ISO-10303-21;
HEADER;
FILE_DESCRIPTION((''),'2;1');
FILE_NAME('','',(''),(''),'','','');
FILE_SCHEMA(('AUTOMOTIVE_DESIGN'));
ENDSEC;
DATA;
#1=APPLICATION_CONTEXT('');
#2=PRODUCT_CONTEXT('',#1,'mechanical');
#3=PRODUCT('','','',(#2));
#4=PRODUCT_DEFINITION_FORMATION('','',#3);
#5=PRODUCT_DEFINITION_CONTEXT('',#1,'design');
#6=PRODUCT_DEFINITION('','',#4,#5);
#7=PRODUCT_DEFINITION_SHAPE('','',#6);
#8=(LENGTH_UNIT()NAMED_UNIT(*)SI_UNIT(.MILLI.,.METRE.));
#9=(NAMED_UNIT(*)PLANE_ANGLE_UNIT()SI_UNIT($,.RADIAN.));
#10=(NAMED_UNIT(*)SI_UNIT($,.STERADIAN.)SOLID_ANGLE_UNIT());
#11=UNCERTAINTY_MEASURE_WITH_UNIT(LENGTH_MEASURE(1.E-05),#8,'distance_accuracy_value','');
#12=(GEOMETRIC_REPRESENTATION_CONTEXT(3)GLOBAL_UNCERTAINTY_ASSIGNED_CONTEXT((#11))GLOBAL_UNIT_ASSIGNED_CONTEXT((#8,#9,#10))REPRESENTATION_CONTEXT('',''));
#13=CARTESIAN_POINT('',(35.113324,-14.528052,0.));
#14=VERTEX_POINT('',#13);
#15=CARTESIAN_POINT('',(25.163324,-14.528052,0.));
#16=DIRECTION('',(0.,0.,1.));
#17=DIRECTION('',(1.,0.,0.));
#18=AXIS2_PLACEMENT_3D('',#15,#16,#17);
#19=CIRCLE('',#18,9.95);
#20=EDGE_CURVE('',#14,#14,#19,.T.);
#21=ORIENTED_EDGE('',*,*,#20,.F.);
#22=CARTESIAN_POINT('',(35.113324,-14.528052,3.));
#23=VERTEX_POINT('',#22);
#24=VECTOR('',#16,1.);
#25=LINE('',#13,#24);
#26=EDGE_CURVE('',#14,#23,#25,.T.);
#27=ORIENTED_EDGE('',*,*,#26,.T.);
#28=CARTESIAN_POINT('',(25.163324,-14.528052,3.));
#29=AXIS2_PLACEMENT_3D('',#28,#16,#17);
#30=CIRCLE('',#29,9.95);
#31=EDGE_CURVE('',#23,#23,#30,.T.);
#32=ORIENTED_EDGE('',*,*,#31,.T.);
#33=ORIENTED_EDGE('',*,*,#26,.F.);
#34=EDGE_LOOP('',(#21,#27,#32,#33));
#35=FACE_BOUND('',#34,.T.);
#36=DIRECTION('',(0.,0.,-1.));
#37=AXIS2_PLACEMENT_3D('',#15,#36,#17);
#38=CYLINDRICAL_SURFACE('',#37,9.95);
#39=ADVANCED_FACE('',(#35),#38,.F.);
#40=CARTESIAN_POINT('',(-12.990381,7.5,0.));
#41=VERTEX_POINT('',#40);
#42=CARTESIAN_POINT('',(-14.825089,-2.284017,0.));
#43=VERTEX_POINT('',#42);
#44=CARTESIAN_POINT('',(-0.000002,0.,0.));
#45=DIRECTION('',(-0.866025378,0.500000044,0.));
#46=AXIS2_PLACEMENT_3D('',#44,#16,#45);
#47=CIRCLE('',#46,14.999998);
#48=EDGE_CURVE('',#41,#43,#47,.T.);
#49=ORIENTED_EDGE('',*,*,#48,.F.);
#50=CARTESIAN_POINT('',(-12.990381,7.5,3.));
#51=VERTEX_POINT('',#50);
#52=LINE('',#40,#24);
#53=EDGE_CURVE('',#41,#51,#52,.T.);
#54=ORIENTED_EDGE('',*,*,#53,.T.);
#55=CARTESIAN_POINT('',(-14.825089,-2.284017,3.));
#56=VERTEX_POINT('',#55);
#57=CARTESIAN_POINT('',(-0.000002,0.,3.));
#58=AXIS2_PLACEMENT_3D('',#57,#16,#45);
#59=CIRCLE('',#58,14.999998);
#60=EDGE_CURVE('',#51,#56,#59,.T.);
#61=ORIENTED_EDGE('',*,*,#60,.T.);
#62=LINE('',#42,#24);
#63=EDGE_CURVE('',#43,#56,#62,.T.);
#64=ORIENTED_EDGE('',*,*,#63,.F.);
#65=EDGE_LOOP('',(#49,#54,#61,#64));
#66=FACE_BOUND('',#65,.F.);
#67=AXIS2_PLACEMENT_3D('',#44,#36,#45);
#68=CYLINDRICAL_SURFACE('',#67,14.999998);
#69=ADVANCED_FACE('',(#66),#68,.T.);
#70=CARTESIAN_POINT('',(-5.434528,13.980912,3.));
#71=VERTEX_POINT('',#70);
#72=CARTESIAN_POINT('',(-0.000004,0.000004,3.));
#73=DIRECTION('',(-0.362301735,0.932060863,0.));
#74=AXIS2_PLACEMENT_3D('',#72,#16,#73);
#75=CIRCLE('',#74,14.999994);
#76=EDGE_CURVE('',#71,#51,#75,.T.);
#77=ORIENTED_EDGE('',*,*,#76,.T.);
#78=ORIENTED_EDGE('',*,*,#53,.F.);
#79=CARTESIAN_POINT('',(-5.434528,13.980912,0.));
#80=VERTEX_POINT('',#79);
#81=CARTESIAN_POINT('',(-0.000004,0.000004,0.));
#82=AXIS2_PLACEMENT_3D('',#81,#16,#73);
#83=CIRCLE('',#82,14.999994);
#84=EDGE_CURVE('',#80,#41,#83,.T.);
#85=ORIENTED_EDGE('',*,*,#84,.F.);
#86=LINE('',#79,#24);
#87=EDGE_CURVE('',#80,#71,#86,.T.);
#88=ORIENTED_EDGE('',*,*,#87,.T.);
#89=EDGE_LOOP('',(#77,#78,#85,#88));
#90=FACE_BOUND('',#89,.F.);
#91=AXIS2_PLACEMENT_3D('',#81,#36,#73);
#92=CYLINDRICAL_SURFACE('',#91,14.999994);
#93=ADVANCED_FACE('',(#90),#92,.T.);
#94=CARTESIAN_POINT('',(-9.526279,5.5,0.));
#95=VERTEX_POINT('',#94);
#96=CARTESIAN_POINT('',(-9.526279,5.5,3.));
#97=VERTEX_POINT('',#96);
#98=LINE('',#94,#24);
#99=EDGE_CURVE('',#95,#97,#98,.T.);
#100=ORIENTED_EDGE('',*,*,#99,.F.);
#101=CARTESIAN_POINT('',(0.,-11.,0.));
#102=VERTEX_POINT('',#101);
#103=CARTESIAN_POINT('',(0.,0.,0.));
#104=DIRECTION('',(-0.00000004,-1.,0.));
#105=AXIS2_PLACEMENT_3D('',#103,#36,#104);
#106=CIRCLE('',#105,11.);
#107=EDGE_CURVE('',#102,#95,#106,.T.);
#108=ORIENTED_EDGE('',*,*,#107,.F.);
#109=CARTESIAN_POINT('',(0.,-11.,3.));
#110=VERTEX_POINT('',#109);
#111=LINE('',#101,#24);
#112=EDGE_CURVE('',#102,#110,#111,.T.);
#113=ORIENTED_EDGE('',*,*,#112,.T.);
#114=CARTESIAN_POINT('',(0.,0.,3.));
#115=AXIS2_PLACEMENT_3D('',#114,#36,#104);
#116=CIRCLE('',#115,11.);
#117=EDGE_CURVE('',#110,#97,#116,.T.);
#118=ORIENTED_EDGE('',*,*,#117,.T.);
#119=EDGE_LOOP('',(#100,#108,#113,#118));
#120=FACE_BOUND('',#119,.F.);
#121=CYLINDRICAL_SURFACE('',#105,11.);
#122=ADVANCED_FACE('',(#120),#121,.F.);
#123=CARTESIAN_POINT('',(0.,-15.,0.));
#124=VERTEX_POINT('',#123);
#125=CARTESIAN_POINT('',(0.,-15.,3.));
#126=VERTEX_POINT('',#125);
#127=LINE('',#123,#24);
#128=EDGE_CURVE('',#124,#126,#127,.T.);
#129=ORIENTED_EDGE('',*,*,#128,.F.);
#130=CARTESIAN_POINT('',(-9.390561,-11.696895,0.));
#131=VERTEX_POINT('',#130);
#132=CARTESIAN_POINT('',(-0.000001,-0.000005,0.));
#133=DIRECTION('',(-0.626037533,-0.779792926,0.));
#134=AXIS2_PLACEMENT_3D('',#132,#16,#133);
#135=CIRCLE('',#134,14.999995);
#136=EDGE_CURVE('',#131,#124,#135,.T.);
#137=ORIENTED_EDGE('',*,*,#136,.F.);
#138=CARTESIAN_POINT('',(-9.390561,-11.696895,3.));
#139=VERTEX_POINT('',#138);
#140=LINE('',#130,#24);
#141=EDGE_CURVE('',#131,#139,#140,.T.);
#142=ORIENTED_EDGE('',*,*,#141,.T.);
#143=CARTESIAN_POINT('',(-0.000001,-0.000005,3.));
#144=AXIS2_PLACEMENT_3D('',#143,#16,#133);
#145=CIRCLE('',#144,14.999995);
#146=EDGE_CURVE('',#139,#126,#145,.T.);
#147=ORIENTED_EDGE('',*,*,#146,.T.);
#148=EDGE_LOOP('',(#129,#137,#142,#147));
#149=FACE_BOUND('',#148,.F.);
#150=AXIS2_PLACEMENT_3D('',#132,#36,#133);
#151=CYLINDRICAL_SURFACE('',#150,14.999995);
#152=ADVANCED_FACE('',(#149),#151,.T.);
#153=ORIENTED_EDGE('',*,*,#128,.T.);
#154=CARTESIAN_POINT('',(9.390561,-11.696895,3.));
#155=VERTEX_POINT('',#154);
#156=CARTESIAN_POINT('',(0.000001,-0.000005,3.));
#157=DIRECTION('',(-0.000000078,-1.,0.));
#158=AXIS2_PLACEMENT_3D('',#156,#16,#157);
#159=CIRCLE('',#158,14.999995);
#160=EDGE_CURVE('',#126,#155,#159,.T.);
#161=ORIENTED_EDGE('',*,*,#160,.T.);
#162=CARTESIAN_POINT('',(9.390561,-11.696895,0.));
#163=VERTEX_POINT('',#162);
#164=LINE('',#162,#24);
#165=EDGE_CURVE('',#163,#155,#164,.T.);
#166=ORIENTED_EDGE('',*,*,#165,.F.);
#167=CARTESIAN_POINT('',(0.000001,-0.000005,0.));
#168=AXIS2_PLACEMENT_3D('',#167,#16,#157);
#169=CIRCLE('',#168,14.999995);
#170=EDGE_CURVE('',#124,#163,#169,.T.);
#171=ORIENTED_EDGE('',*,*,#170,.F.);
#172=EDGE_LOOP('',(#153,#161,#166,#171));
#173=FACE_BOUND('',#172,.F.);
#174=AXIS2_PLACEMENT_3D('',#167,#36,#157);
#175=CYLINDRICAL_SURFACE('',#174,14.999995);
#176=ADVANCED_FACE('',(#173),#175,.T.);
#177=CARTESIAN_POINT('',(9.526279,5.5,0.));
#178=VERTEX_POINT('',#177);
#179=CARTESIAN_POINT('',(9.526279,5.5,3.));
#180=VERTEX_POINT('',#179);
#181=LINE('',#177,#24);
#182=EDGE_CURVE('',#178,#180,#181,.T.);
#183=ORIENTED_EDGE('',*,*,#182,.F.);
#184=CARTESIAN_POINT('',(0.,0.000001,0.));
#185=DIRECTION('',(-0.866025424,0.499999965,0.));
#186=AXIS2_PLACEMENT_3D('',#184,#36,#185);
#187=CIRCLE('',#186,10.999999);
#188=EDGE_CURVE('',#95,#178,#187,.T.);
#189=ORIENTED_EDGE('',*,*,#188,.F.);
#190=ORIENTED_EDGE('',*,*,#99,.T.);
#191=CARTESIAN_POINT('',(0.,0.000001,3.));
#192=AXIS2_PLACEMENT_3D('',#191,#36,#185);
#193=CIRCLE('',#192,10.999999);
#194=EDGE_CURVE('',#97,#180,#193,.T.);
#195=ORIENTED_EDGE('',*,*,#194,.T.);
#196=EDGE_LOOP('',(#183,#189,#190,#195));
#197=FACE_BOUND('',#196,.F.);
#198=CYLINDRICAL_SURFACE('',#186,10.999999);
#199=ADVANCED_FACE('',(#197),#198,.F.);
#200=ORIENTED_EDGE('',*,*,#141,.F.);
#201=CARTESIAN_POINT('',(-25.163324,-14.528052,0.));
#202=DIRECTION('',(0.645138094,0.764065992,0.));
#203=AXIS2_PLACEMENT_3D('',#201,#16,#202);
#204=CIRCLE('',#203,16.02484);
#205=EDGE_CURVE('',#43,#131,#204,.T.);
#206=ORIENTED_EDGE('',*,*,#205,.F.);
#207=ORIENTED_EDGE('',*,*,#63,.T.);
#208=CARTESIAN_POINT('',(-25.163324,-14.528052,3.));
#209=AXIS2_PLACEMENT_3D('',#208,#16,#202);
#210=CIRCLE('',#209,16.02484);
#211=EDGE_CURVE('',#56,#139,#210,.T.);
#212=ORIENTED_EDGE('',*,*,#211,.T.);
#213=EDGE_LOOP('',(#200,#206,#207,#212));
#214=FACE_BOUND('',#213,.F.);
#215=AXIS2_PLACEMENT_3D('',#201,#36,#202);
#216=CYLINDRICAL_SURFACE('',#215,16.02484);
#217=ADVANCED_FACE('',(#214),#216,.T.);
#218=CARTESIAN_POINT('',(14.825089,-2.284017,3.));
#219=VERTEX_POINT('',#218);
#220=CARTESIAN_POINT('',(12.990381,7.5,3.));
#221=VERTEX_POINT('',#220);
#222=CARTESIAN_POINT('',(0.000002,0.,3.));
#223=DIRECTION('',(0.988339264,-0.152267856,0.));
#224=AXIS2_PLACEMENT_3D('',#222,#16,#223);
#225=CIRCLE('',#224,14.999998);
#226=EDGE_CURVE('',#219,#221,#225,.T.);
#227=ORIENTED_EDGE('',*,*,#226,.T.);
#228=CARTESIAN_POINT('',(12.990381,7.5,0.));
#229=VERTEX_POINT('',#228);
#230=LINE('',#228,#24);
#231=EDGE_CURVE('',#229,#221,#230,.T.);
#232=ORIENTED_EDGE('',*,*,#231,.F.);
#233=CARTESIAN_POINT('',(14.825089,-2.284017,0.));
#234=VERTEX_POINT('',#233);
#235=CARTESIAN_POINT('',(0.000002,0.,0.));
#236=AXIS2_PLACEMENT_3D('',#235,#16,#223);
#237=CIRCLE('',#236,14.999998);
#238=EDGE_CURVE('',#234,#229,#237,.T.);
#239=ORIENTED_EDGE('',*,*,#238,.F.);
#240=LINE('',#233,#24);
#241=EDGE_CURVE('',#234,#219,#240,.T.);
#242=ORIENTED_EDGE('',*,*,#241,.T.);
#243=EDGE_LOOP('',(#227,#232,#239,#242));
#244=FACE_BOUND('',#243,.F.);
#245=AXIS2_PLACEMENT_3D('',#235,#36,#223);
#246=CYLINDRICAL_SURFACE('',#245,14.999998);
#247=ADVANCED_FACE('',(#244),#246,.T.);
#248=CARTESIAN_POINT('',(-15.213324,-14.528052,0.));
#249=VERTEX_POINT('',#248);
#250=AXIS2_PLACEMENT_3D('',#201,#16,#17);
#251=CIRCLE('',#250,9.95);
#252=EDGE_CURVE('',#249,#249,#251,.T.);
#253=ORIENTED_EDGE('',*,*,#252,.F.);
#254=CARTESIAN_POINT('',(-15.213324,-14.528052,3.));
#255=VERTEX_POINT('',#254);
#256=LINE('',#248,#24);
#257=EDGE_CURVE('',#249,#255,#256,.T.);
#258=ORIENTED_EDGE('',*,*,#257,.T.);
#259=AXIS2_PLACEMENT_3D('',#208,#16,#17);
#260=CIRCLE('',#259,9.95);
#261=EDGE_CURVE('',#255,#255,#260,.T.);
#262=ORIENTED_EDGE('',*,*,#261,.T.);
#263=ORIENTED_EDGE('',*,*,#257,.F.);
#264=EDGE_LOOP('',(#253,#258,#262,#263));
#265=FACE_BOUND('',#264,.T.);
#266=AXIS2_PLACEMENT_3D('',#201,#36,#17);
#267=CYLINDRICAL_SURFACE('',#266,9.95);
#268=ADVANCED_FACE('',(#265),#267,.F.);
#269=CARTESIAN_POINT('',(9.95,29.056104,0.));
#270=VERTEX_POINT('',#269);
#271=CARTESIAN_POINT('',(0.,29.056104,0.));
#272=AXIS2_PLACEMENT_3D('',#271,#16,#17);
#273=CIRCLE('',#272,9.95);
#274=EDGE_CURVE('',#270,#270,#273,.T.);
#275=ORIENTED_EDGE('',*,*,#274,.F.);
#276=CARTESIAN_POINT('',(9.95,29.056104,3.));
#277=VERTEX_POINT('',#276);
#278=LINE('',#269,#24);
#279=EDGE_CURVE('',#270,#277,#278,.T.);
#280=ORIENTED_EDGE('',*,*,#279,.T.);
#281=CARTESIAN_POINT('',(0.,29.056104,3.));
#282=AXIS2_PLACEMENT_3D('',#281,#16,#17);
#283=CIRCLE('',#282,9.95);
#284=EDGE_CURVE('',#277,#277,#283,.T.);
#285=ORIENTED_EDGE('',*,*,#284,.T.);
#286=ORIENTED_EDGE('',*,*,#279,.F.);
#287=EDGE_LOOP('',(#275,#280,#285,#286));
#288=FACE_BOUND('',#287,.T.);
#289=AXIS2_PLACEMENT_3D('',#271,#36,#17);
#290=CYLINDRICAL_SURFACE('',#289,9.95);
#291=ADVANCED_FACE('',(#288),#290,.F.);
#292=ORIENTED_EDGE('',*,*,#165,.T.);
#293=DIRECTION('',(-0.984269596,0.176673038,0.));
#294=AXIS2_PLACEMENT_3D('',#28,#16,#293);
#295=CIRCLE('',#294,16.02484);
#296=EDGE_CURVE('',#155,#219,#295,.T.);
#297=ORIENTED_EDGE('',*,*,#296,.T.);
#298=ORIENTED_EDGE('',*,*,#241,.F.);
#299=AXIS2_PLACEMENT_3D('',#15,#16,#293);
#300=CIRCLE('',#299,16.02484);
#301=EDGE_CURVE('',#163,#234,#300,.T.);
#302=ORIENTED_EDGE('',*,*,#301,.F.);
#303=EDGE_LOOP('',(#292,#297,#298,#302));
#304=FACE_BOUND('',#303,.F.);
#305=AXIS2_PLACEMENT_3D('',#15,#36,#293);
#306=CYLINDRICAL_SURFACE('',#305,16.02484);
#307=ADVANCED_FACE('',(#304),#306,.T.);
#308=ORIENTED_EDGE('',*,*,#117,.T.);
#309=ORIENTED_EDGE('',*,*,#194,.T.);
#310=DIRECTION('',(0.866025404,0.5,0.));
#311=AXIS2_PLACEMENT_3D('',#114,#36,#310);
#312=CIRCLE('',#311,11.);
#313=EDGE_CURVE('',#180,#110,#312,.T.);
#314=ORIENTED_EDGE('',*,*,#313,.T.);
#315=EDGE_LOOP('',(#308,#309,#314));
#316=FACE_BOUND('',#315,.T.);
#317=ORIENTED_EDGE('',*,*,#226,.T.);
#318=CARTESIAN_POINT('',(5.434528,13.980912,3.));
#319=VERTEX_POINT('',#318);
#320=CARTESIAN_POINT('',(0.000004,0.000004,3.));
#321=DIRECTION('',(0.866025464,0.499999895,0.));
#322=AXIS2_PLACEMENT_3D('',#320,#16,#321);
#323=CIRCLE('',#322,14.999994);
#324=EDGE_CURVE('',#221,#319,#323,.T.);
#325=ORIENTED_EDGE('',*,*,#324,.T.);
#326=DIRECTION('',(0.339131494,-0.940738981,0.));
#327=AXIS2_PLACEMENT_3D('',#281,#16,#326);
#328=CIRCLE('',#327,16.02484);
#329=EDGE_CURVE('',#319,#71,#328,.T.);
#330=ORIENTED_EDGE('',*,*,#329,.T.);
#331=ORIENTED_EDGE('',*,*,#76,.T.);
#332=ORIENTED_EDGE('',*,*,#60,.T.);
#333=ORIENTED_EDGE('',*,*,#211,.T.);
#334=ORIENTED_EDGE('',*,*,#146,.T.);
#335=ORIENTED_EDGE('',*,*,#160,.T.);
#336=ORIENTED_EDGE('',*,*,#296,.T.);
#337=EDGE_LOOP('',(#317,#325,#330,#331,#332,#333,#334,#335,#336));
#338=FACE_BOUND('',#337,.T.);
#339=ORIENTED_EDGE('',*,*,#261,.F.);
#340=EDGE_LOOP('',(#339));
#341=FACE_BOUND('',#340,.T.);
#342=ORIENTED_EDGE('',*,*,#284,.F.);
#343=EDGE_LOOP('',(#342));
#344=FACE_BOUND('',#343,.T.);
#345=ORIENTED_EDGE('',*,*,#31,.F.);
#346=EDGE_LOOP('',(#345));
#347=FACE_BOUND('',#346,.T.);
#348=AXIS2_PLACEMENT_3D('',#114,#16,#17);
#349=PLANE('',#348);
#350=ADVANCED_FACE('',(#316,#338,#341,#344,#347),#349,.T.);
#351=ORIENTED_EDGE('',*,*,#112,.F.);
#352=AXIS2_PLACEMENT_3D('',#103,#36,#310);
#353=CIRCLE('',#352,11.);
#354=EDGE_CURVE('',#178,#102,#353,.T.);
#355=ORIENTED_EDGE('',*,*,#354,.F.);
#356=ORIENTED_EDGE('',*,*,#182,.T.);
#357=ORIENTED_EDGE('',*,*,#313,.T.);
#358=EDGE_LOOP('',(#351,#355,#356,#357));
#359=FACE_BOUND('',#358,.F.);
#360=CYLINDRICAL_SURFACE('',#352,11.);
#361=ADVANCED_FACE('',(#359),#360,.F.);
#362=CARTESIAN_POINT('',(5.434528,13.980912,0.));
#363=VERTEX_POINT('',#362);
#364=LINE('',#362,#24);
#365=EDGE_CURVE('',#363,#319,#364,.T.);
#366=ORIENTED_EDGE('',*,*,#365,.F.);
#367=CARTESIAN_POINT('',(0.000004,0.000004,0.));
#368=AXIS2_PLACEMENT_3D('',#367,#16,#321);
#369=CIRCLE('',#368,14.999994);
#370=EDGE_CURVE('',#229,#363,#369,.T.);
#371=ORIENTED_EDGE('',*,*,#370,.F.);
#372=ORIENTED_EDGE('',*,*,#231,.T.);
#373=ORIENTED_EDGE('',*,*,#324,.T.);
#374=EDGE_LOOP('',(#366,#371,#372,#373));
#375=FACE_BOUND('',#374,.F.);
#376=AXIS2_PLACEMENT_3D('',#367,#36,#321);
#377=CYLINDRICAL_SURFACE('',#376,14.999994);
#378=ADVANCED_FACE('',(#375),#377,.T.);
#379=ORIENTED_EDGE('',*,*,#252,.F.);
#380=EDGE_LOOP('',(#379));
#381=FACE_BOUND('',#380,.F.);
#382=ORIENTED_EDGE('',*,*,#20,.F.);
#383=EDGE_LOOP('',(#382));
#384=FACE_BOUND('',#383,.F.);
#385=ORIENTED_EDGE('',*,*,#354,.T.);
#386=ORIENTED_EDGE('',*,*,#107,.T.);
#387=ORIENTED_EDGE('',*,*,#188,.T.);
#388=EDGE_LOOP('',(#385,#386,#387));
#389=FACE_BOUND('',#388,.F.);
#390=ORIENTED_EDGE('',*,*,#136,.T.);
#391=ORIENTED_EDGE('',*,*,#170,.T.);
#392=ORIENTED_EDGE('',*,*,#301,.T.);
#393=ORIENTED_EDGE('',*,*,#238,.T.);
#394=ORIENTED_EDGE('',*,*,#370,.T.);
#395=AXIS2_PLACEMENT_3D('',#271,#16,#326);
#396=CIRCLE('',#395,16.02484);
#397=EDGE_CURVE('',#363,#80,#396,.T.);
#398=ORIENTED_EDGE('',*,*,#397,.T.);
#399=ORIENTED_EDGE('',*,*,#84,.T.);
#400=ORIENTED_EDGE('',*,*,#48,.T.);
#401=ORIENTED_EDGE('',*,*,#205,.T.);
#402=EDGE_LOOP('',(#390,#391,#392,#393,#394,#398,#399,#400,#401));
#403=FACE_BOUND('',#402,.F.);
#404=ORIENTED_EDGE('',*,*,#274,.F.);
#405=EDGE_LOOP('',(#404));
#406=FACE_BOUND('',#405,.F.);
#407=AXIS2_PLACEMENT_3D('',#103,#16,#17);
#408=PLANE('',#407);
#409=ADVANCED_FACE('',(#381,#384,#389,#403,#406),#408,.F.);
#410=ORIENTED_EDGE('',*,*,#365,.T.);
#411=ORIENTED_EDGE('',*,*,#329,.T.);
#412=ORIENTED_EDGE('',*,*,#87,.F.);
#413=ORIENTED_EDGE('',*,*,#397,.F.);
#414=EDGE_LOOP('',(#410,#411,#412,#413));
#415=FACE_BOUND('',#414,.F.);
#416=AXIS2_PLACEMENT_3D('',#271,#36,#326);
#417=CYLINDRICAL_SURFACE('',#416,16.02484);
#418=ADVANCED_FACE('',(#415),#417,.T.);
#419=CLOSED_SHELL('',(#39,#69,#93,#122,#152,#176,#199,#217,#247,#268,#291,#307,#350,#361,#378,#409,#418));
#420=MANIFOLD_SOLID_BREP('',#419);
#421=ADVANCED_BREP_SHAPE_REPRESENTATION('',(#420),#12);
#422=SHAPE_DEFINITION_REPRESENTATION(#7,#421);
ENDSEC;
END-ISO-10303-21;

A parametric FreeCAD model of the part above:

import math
import FreeCAD as App
import Part
import Sketcher

V = App.Vector

doc = App.newDocument("Part")
body = doc.addObject("PartDesign::Body", "Body")

# Sketch on XY plane
sketch1 = body.newObject("Sketcher::SketchObject", "Sketch")
sketch1.AttachmentSupport = (doc.getObject("XY_Plane"), [""])
sketch1.MapMode = "FlatFace"
sketch1.addGeometry([
    Part.ArcOfCircle(Part.Circle(V(0, 0, 0), V(0, 0, 1), 15), math.radians(-9), math.radians(30)),  # 0
    Part.ArcOfCircle(Part.Circle(V(0, 0, 0), V(0, 0, 1), 15), math.radians(30), math.radians(69)),  # 1
    Part.ArcOfCircle(Part.Circle(V(0, 29, 0), V(0, 0, 1), 16), math.radians(-70), math.radians(250)),  # 2
    Part.ArcOfCircle(Part.Circle(V(0, 0, 0), V(0, 0, 1), 15), math.radians(111), math.radians(150)),  # 3
    Part.ArcOfCircle(Part.Circle(V(0, 0, 0), V(0, 0, 1), 15), math.radians(150), math.radians(189)),  # 4
    Part.ArcOfCircle(Part.Circle(V(-25, -15, 0), V(0, 0, 1), 16), math.radians(50), math.radians(370)),  # 5
    Part.ArcOfCircle(Part.Circle(V(0, 0, 0), V(0, 0, 1), 15), math.radians(-129), math.radians(-90)),  # 6
    Part.ArcOfCircle(Part.Circle(V(0, 0, 0), V(0, 0, 1), 15), math.radians(-90), math.radians(-51)),  # 7
    Part.ArcOfCircle(Part.Circle(V(25, -15, 0), V(0, 0, 1), 16), math.radians(170), math.radians(490)),  # 8
    Part.Circle(V(-25, -15, 0), V(0, 0, 1), 10),  # 9
    Part.Circle(V(25, -15, 0), V(0, 0, 1), 10),  # 10
    Part.ArcOfCircle(Part.Circle(V(0, 0, 0), V(0, 0, 1), 11), math.radians(150), math.radians(270)),  # 11
    Part.ArcOfCircle(Part.Circle(V(0, 0, 0), V(0, 0, 1), 11), math.radians(30), math.radians(150)),  # 12
    Part.ArcOfCircle(Part.Circle(V(0, 0, 0), V(0, 0, 1), 11), math.radians(-90), math.radians(30)),  # 13
    Part.Circle(V(0, 29, 0), V(0, 0, 1), 10),  # 14
], False)
sketch1.addConstraint([
    Sketcher.Constraint("Tangent", 0, 2, 1, 1),
    Sketcher.Constraint("Coincident", 1, 2, 2, 1),
    Sketcher.Constraint("Coincident", 2, 2, 3, 1),
    Sketcher.Constraint("Tangent", 3, 2, 4, 1),
    Sketcher.Constraint("Coincident", 4, 2, 5, 1),
    Sketcher.Constraint("Coincident", 5, 2, 6, 1),
    Sketcher.Constraint("Tangent", 6, 2, 7, 1),
    Sketcher.Constraint("Coincident", 7, 2, 8, 1),
    Sketcher.Constraint("Coincident", 8, 2, 0, 1),
    Sketcher.Constraint("Tangent", 11, 1, 12, 2),
    Sketcher.Constraint("Tangent", 12, 1, 13, 2),
    Sketcher.Constraint("Tangent", 13, 1, 11, 2),
    Sketcher.Constraint("Coincident", 0, 3, -1, 1),
    Sketcher.Constraint("Coincident", 3, 3, -1, 1),
    Sketcher.Constraint("Coincident", 6, 3, -1, 1),
    Sketcher.Constraint("Coincident", 11, 3, -1, 1),
    Sketcher.Constraint("Coincident", 9, 3, 5, 3),
    Sketcher.Constraint("Coincident", 10, 3, 8, 3),
    Sketcher.Constraint("Coincident", 14, 3, 2, 3),
    Sketcher.Constraint("Equal", 1, 3),
    Sketcher.Constraint("Equal", 0, 4),
    Sketcher.Constraint("Equal", 2, 5),
    Sketcher.Constraint("Equal", 3, 6),
    Sketcher.Constraint("Equal", 6, 7),
    Sketcher.Constraint("Equal", 5, 8),
    Sketcher.Constraint("Equal", 9, 10),
    Sketcher.Constraint("Equal", 10, 14),
    Sketcher.Constraint("Symmetric", 5, 3, 8, 3, -2),
    Sketcher.Constraint("Symmetric", 1, 2, 2, 2, -2),
    Sketcher.Constraint("PointOnObject", 6, 2, -2),
    Sketcher.Constraint("PointOnObject", 13, 1, -2),
    Sketcher.Constraint("Horizontal", 0, 2, 3, 2),
    Sketcher.Constraint("Horizontal", 11, 1, 12, 1),
    Sketcher.Constraint("Radius", 11, 11.0),
    Sketcher.Constraint("Diameter", 9, 19.9),
    Sketcher.Constraint("DistanceY", 6, 2, -1, 1, 15.0),
    Sketcher.Constraint("DistanceY", 11, 1, 3, 2, 2.0),
    Sketcher.Constraint("DistanceY", -1, 1, 0, 2, 7.5),
    Sketcher.Constraint("Radius", 2, 16.02484),
    Sketcher.Constraint("DistanceY", 1, 3, 2, 3, 29.056099),
    Sketcher.Constraint("DistanceX", 4, 2, -1, 1, 14.825089),
    Sketcher.Constraint("DistanceX", 5, 2, -1, 1, 9.390561),
])
pad1 = body.newObject("PartDesign::Pad", "Pad")
pad1.Profile = sketch1
pad1.Length = 3

doc.recompute()
